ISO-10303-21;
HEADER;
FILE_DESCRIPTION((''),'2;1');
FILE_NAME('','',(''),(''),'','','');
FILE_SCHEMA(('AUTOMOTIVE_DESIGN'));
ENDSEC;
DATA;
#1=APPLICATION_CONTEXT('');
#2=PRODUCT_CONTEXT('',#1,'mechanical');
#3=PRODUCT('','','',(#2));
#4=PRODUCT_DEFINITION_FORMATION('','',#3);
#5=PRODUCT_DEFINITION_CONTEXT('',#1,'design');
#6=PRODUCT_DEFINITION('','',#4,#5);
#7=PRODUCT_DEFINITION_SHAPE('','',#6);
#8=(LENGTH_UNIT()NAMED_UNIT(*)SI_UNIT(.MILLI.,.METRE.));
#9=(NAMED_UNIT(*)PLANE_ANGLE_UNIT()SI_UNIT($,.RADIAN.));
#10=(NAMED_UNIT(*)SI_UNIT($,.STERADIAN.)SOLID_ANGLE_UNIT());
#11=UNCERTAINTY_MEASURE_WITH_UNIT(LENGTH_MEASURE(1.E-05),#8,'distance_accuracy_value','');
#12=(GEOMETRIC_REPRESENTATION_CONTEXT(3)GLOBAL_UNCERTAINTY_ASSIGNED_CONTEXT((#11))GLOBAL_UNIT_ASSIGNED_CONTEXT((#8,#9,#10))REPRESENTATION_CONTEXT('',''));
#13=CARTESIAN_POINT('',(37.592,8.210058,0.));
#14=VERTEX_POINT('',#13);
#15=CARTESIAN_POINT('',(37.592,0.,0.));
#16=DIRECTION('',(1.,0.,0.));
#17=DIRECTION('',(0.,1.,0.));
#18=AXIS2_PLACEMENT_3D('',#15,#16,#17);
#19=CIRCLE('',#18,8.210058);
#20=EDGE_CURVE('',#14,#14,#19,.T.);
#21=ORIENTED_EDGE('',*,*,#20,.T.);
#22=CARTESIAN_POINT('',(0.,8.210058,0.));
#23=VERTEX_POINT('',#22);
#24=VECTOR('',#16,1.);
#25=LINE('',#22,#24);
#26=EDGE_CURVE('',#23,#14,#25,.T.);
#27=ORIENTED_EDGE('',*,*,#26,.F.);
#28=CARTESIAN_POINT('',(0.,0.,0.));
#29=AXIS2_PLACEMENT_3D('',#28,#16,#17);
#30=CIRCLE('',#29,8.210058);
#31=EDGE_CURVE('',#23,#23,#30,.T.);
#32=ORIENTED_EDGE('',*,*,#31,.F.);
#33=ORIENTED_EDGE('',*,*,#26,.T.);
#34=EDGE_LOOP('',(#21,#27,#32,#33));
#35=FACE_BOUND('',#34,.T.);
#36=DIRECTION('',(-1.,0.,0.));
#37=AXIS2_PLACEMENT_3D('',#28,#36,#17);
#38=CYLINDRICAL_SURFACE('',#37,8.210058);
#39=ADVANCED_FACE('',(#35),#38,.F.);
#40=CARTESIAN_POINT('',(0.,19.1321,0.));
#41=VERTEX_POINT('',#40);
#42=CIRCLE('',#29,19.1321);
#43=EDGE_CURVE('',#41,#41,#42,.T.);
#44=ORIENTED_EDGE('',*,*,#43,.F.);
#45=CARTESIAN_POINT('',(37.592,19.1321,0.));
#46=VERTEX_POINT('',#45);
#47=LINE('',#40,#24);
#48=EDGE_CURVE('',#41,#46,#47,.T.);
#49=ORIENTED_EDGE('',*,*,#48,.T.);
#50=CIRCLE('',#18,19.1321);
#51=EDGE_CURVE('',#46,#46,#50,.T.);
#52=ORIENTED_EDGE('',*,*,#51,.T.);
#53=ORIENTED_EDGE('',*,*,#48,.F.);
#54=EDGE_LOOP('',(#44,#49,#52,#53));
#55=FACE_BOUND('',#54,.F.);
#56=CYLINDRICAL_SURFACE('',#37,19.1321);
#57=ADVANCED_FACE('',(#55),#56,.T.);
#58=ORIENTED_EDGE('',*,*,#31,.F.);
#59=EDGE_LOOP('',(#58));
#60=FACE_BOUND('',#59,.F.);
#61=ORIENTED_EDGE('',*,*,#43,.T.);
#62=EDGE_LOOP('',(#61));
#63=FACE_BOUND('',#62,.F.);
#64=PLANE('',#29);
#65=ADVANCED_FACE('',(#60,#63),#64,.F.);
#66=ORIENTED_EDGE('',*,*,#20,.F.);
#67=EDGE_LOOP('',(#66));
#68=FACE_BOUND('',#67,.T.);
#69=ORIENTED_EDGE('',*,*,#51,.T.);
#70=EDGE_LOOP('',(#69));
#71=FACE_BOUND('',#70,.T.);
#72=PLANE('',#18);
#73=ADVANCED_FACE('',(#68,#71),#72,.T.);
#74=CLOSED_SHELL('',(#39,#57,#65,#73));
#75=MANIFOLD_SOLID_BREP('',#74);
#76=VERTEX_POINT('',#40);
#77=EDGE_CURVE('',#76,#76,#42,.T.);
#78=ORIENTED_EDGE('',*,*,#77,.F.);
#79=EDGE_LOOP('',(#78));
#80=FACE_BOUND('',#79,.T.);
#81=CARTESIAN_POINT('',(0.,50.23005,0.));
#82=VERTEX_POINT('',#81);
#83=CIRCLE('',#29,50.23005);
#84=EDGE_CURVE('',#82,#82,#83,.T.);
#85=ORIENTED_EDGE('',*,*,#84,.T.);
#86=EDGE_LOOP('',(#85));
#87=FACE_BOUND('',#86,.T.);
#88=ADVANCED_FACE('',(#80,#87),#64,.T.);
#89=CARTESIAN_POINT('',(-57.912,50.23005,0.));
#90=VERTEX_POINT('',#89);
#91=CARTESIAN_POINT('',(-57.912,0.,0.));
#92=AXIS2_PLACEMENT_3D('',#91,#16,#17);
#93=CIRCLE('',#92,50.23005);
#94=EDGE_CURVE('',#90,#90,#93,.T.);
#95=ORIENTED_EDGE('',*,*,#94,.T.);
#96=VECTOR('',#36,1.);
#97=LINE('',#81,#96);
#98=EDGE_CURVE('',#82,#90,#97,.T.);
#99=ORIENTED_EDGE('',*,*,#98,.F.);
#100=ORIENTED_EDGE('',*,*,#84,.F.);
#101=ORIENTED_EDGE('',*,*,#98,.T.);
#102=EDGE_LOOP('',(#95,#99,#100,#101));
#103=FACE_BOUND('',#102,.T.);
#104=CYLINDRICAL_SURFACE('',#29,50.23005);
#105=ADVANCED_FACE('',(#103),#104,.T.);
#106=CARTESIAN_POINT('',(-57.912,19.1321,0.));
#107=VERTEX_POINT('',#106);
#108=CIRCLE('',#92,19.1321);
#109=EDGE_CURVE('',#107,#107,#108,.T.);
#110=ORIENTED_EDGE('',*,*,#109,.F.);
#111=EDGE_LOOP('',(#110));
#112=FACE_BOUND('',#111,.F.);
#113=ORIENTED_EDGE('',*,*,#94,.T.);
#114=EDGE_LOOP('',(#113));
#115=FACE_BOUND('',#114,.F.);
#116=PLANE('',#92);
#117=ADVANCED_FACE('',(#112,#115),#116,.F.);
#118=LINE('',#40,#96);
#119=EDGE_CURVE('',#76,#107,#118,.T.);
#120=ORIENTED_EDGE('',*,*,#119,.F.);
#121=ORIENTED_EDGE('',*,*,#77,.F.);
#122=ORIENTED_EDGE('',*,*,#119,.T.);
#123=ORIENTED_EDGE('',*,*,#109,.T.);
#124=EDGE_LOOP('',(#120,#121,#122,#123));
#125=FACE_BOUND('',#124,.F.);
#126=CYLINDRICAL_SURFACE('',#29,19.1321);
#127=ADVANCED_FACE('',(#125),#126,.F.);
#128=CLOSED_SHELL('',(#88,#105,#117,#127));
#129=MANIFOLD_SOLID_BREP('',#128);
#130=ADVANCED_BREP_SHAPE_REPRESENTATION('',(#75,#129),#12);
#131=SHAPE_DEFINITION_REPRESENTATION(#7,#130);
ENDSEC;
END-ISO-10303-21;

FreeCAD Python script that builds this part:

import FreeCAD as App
import Part
import Sketcher

V = App.Vector

doc = App.newDocument("Part")
params = doc.addObject("Spreadsheet::Sheet", "Params")
for row, (alias, value) in enumerate([
    ("pad1_length", "1.48 in"),
    ("pad2_length", "2.28 in"),
], start=1):
    params.set(f"A{row}", alias)
    params.set(f"B{row}", "=" + value)
    params.setAlias(f"B{row}", alias)

body = doc.addObject("PartDesign::Body", "Body")

# Sketch on YZ plane
sketch1 = body.newObject("Sketcher::SketchObject", "Sketch")
sketch1.AttachmentSupport = (doc.getObject("YZ_Plane"), [""])
sketch1.MapMode = "FlatFace"
sketch1.addGeometry(Part.Circle(V(0, 0, 0), V(0, 0, 1), 19.1321), False)
sketch1.addGeometry(Part.Circle(V(0, 0, 0), V(0, 0, 1), 8.210058), False)
sketch1.addConstraint(Sketcher.Constraint("Coincident", 0, 3, -1, 1))
sketch1.addConstraint(Sketcher.Constraint("Coincident", 1, 3, -1, 1))
sketch1.addConstraint(Sketcher.Constraint("Diameter", 0, 38.2642))
sketch1.addConstraint(Sketcher.Constraint("Diameter", 1, 16.420115))
pad1 = body.newObject("PartDesign::Pad", "Pad")
pad1.Profile = sketch1
pad1.setExpression("Length", "Params.pad1_length")

# Sketch on YZ plane
sketch2 = body.newObject("Sketcher::SketchObject", "Sketch001")
sketch2.AttachmentSupport = (doc.getObject("YZ_Plane"), [""])
sketch2.MapMode = "FlatFace"
sketch2.addGeometry(Part.Circle(V(0, 0, 0), V(0, 0, 1), 8.210058), False)
sketch2.addConstraint(Sketcher.Constraint("Coincident", 0, 3, -1, 1))
sketch2.addConstraint(Sketcher.Constraint("Diameter", 0, 16.420115))
pocket1 = body.newObject("PartDesign::Pocket", "Pocket")
pocket1.Profile = sketch2
pocket1.Type = "ThroughAll"
body2 = doc.addObject("PartDesign::Body", "Body001")

# Sketch on YZ plane
sketch3 = body2.newObject("Sketcher::SketchObject", "Sketch002")
sketch3.AttachmentSupport = (doc.getObject("YZ_Plane001"), [""])
sketch3.MapMode = "FlatFace"
sketch3.addGeometry(Part.Circle(V(0, 0, 0), V(0, 0, 1), 50.23005), False)
sketch3.addGeometry(Part.Circle(V(0, 0, 0), V(0, 0, 1), 19.1321), False)
sketch3.addConstraint(Sketcher.Constraint("Coincident", 0, 3, -1, 1))
sketch3.addConstraint(Sketcher.Constraint("Coincident", 1, 3, -1, 1))
sketch3.addConstraint(Sketcher.Constraint("Diameter", 0, 100.4601))
sketch3.addConstraint(Sketcher.Constraint("Diameter", 1, 38.2642))
pad2 = body2.newObject("PartDesign::Pad", "Pad001")
pad2.Profile = sketch3
pad2.setExpression("Length", "Params.pad2_length")
pad2.Reversed = True

doc.recompute()
